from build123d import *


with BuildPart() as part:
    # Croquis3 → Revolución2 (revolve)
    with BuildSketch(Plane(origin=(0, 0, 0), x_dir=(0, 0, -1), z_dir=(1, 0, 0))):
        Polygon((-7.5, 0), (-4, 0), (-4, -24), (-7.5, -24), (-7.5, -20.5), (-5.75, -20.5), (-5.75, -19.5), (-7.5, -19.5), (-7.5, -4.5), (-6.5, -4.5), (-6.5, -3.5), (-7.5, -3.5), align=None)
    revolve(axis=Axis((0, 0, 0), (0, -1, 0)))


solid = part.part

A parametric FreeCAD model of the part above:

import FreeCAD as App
import Part
import Sketcher
Q = App.Units.Quantity

doc = App.newDocument("Part")
params = doc.addObject("Spreadsheet::Sheet", "Params")
for row, (alias, value) in enumerate([
    ("sketch1_width", "1 mm"),
    ("sketch1_width2", "15 mm"),
    ("sketch1_width3", "24 mm"),
    ("sketch1_height", "1.75 mm"),
    ("revolution_angle", "360 deg"),
], start=1):
    params.set(f"A{row}", alias)
    params.set(f"B{row}", "=" + value)
    params.setAlias(f"B{row}", alias)

body = doc.addObject("PartDesign::Body", "Body")

# Sketch on YZ plane
sketch1 = body.newObject("Sketcher::SketchObject", "Sketch")
sketch1.AttachmentSupport = (doc.getObject("YZ_Plane"), [""])
sketch1.MapMode = "FlatFace"
sketch1.addGeometry(Part.LineSegment(App.Vector(0, 4, 0), App.Vector(0, 7.5, 0)), False)
sketch1.addGeometry(Part.LineSegment(App.Vector(0, 7.5, 0), App.Vector(-3.5, 7.5, 0)), False)
sketch1.addGeometry(Part.LineSegment(App.Vector(-3.5, 7.5, 0), App.Vector(-3.5, 6.5, 0)), False)
sketch1.addGeometry(Part.LineSegment(App.Vector(-3.5, 6.5, 0), App.Vector(-4.5, 6.5, 0)), False)
sketch1.addGeometry(Part.LineSegment(App.Vector(-4.5, 6.5, 0), App.Vector(-4.5, 7.5, 0)), False)
sketch1.addGeometry(Part.LineSegment(App.Vector(-4.5, 7.5, 0), App.Vector(-19.5, 7.5, 0)), False)
sketch1.addGeometry(Part.LineSegment(App.Vector(-19.5, 7.5, 0), App.Vector(-19.5, 5.75, 0)), False)
sketch1.addGeometry(Part.LineSegment(App.Vector(-19.5, 5.75, 0), App.Vector(-20.5, 5.75, 0)), False)
sketch1.addGeometry(Part.LineSegment(App.Vector(-20.5, 5.75, 0), App.Vector(-20.5, 7.5, 0)), False)
sketch1.addGeometry(Part.LineSegment(App.Vector(-20.5, 7.5, 0), App.Vector(-24, 7.5, 0)), False)
sketch1.addGeometry(Part.LineSegment(App.Vector(-24, 7.5, 0), App.Vector(-24, 4, 0)), False)
sketch1.addGeometry(Part.LineSegment(App.Vector(-24, 4, 0), App.Vector(0, 4, 0)), False)
sketch1.addConstraint(Sketcher.Constraint("Coincident", 0, 2, 1, 1))
sketch1.addConstraint(Sketcher.Constraint("Coincident", 1, 2, 2, 1))
sketch1.addConstraint(Sketcher.Constraint("Coincident", 2, 2, 3, 1))
sketch1.addConstraint(Sketcher.Constraint("Coincident", 3, 2, 4, 1))
sketch1.addConstraint(Sketcher.Constraint("Coincident", 4, 2, 5, 1))
sketch1.addConstraint(Sketcher.Constraint("Coincident", 5, 2, 6, 1))
sketch1.addConstraint(Sketcher.Constraint("Coincident", 6, 2, 7, 1))
sketch1.addConstraint(Sketcher.Constraint("Coincident", 7, 2, 8, 1))
sketch1.addConstraint(Sketcher.Constraint("Coincident", 8, 2, 9, 1))
sketch1.addConstraint(Sketcher.Constraint("Coincident", 9, 2, 10, 1))
sketch1.addConstraint(Sketcher.Constraint("Coincident", 10, 2, 11, 1))
sketch1.addConstraint(Sketcher.Constraint("Coincident", 11, 2, 0, 1))
sketch1.addConstraint(Sketcher.Constraint("Vertical", 0))
sketch1.addConstraint(Sketcher.Constraint("Horizontal", 1))
sketch1.addConstraint(Sketcher.Constraint("Vertical", 2))
sketch1.addConstraint(Sketcher.Constraint("Horizontal", 3))
sketch1.addConstraint(Sketcher.Constraint("Vertical", 4))
sketch1.addConstraint(Sketcher.Constraint("Horizontal", 5))
sketch1.addConstraint(Sketcher.Constraint("Vertical", 6))
sketch1.addConstraint(Sketcher.Constraint("Horizontal", 7))
sketch1.addConstraint(Sketcher.Constraint("Vertical", 8))
sketch1.addConstraint(Sketcher.Constraint("Horizontal", 9))
sketch1.addConstraint(Sketcher.Constraint("Vertical", 10))
sketch1.addConstraint(Sketcher.Constraint("Horizontal", 11))
sketch1.addConstraint(Sketcher.Constraint("PointOnObject", 0, 2, -2))
sketch1.addConstraint(Sketcher.Constraint("Horizontal", 1, 2, 4, 2))
sketch1.addConstraint(Sketcher.Constraint("Horizontal", 5, 2, 8, 2))
sketch1.addConstraint(Sketcher.Constraint("Equal", 3, 7))
sketch1.addConstraint(Sketcher.Constraint("Equal", 1, 9))
sketch1.addConstraint(Sketcher.Constraint("Equal", 9, 0))
sketch1.addConstraint(Sketcher.Constraint("Equal", 7, 2))
sketch1.addConstraint(Sketcher.Constraint("DistanceX", 3, 2, 3, 1, Q("1 mm")))
sketch1.addConstraint(Sketcher.Constraint("DistanceX", 5, 2, 5, 1, Q("15 mm")))
sketch1.addConstraint(Sketcher.Constraint("DistanceX", 11, 1, 11, 2, Q("24 mm")))
sketch1.addConstraint(Sketcher.Constraint("DistanceY", -1, 1, 10, 2, Q("4 mm")))
sketch1.addConstraint(Sketcher.Constraint("DistanceY", 6, 2, 6, 1, Q("1.75 mm")))
sketch1.setExpression("Constraints[31]", "Params.sketch1_width")
sketch1.setExpression("Constraints[32]", "Params.sketch1_width2")
sketch1.setExpression("Constraints[33]", "Params.sketch1_width3")
sketch1.setExpression("Constraints[35]", "Params.sketch1_height")
revolution = body.newObject("PartDesign::Revolution", "Revolution")
revolution.Profile = sketch1
revolution.ReferenceAxis = (sketch1, ["H_Axis"])
revolution.setExpression("Angle", "Params.revolution_angle")

doc.recompute()
